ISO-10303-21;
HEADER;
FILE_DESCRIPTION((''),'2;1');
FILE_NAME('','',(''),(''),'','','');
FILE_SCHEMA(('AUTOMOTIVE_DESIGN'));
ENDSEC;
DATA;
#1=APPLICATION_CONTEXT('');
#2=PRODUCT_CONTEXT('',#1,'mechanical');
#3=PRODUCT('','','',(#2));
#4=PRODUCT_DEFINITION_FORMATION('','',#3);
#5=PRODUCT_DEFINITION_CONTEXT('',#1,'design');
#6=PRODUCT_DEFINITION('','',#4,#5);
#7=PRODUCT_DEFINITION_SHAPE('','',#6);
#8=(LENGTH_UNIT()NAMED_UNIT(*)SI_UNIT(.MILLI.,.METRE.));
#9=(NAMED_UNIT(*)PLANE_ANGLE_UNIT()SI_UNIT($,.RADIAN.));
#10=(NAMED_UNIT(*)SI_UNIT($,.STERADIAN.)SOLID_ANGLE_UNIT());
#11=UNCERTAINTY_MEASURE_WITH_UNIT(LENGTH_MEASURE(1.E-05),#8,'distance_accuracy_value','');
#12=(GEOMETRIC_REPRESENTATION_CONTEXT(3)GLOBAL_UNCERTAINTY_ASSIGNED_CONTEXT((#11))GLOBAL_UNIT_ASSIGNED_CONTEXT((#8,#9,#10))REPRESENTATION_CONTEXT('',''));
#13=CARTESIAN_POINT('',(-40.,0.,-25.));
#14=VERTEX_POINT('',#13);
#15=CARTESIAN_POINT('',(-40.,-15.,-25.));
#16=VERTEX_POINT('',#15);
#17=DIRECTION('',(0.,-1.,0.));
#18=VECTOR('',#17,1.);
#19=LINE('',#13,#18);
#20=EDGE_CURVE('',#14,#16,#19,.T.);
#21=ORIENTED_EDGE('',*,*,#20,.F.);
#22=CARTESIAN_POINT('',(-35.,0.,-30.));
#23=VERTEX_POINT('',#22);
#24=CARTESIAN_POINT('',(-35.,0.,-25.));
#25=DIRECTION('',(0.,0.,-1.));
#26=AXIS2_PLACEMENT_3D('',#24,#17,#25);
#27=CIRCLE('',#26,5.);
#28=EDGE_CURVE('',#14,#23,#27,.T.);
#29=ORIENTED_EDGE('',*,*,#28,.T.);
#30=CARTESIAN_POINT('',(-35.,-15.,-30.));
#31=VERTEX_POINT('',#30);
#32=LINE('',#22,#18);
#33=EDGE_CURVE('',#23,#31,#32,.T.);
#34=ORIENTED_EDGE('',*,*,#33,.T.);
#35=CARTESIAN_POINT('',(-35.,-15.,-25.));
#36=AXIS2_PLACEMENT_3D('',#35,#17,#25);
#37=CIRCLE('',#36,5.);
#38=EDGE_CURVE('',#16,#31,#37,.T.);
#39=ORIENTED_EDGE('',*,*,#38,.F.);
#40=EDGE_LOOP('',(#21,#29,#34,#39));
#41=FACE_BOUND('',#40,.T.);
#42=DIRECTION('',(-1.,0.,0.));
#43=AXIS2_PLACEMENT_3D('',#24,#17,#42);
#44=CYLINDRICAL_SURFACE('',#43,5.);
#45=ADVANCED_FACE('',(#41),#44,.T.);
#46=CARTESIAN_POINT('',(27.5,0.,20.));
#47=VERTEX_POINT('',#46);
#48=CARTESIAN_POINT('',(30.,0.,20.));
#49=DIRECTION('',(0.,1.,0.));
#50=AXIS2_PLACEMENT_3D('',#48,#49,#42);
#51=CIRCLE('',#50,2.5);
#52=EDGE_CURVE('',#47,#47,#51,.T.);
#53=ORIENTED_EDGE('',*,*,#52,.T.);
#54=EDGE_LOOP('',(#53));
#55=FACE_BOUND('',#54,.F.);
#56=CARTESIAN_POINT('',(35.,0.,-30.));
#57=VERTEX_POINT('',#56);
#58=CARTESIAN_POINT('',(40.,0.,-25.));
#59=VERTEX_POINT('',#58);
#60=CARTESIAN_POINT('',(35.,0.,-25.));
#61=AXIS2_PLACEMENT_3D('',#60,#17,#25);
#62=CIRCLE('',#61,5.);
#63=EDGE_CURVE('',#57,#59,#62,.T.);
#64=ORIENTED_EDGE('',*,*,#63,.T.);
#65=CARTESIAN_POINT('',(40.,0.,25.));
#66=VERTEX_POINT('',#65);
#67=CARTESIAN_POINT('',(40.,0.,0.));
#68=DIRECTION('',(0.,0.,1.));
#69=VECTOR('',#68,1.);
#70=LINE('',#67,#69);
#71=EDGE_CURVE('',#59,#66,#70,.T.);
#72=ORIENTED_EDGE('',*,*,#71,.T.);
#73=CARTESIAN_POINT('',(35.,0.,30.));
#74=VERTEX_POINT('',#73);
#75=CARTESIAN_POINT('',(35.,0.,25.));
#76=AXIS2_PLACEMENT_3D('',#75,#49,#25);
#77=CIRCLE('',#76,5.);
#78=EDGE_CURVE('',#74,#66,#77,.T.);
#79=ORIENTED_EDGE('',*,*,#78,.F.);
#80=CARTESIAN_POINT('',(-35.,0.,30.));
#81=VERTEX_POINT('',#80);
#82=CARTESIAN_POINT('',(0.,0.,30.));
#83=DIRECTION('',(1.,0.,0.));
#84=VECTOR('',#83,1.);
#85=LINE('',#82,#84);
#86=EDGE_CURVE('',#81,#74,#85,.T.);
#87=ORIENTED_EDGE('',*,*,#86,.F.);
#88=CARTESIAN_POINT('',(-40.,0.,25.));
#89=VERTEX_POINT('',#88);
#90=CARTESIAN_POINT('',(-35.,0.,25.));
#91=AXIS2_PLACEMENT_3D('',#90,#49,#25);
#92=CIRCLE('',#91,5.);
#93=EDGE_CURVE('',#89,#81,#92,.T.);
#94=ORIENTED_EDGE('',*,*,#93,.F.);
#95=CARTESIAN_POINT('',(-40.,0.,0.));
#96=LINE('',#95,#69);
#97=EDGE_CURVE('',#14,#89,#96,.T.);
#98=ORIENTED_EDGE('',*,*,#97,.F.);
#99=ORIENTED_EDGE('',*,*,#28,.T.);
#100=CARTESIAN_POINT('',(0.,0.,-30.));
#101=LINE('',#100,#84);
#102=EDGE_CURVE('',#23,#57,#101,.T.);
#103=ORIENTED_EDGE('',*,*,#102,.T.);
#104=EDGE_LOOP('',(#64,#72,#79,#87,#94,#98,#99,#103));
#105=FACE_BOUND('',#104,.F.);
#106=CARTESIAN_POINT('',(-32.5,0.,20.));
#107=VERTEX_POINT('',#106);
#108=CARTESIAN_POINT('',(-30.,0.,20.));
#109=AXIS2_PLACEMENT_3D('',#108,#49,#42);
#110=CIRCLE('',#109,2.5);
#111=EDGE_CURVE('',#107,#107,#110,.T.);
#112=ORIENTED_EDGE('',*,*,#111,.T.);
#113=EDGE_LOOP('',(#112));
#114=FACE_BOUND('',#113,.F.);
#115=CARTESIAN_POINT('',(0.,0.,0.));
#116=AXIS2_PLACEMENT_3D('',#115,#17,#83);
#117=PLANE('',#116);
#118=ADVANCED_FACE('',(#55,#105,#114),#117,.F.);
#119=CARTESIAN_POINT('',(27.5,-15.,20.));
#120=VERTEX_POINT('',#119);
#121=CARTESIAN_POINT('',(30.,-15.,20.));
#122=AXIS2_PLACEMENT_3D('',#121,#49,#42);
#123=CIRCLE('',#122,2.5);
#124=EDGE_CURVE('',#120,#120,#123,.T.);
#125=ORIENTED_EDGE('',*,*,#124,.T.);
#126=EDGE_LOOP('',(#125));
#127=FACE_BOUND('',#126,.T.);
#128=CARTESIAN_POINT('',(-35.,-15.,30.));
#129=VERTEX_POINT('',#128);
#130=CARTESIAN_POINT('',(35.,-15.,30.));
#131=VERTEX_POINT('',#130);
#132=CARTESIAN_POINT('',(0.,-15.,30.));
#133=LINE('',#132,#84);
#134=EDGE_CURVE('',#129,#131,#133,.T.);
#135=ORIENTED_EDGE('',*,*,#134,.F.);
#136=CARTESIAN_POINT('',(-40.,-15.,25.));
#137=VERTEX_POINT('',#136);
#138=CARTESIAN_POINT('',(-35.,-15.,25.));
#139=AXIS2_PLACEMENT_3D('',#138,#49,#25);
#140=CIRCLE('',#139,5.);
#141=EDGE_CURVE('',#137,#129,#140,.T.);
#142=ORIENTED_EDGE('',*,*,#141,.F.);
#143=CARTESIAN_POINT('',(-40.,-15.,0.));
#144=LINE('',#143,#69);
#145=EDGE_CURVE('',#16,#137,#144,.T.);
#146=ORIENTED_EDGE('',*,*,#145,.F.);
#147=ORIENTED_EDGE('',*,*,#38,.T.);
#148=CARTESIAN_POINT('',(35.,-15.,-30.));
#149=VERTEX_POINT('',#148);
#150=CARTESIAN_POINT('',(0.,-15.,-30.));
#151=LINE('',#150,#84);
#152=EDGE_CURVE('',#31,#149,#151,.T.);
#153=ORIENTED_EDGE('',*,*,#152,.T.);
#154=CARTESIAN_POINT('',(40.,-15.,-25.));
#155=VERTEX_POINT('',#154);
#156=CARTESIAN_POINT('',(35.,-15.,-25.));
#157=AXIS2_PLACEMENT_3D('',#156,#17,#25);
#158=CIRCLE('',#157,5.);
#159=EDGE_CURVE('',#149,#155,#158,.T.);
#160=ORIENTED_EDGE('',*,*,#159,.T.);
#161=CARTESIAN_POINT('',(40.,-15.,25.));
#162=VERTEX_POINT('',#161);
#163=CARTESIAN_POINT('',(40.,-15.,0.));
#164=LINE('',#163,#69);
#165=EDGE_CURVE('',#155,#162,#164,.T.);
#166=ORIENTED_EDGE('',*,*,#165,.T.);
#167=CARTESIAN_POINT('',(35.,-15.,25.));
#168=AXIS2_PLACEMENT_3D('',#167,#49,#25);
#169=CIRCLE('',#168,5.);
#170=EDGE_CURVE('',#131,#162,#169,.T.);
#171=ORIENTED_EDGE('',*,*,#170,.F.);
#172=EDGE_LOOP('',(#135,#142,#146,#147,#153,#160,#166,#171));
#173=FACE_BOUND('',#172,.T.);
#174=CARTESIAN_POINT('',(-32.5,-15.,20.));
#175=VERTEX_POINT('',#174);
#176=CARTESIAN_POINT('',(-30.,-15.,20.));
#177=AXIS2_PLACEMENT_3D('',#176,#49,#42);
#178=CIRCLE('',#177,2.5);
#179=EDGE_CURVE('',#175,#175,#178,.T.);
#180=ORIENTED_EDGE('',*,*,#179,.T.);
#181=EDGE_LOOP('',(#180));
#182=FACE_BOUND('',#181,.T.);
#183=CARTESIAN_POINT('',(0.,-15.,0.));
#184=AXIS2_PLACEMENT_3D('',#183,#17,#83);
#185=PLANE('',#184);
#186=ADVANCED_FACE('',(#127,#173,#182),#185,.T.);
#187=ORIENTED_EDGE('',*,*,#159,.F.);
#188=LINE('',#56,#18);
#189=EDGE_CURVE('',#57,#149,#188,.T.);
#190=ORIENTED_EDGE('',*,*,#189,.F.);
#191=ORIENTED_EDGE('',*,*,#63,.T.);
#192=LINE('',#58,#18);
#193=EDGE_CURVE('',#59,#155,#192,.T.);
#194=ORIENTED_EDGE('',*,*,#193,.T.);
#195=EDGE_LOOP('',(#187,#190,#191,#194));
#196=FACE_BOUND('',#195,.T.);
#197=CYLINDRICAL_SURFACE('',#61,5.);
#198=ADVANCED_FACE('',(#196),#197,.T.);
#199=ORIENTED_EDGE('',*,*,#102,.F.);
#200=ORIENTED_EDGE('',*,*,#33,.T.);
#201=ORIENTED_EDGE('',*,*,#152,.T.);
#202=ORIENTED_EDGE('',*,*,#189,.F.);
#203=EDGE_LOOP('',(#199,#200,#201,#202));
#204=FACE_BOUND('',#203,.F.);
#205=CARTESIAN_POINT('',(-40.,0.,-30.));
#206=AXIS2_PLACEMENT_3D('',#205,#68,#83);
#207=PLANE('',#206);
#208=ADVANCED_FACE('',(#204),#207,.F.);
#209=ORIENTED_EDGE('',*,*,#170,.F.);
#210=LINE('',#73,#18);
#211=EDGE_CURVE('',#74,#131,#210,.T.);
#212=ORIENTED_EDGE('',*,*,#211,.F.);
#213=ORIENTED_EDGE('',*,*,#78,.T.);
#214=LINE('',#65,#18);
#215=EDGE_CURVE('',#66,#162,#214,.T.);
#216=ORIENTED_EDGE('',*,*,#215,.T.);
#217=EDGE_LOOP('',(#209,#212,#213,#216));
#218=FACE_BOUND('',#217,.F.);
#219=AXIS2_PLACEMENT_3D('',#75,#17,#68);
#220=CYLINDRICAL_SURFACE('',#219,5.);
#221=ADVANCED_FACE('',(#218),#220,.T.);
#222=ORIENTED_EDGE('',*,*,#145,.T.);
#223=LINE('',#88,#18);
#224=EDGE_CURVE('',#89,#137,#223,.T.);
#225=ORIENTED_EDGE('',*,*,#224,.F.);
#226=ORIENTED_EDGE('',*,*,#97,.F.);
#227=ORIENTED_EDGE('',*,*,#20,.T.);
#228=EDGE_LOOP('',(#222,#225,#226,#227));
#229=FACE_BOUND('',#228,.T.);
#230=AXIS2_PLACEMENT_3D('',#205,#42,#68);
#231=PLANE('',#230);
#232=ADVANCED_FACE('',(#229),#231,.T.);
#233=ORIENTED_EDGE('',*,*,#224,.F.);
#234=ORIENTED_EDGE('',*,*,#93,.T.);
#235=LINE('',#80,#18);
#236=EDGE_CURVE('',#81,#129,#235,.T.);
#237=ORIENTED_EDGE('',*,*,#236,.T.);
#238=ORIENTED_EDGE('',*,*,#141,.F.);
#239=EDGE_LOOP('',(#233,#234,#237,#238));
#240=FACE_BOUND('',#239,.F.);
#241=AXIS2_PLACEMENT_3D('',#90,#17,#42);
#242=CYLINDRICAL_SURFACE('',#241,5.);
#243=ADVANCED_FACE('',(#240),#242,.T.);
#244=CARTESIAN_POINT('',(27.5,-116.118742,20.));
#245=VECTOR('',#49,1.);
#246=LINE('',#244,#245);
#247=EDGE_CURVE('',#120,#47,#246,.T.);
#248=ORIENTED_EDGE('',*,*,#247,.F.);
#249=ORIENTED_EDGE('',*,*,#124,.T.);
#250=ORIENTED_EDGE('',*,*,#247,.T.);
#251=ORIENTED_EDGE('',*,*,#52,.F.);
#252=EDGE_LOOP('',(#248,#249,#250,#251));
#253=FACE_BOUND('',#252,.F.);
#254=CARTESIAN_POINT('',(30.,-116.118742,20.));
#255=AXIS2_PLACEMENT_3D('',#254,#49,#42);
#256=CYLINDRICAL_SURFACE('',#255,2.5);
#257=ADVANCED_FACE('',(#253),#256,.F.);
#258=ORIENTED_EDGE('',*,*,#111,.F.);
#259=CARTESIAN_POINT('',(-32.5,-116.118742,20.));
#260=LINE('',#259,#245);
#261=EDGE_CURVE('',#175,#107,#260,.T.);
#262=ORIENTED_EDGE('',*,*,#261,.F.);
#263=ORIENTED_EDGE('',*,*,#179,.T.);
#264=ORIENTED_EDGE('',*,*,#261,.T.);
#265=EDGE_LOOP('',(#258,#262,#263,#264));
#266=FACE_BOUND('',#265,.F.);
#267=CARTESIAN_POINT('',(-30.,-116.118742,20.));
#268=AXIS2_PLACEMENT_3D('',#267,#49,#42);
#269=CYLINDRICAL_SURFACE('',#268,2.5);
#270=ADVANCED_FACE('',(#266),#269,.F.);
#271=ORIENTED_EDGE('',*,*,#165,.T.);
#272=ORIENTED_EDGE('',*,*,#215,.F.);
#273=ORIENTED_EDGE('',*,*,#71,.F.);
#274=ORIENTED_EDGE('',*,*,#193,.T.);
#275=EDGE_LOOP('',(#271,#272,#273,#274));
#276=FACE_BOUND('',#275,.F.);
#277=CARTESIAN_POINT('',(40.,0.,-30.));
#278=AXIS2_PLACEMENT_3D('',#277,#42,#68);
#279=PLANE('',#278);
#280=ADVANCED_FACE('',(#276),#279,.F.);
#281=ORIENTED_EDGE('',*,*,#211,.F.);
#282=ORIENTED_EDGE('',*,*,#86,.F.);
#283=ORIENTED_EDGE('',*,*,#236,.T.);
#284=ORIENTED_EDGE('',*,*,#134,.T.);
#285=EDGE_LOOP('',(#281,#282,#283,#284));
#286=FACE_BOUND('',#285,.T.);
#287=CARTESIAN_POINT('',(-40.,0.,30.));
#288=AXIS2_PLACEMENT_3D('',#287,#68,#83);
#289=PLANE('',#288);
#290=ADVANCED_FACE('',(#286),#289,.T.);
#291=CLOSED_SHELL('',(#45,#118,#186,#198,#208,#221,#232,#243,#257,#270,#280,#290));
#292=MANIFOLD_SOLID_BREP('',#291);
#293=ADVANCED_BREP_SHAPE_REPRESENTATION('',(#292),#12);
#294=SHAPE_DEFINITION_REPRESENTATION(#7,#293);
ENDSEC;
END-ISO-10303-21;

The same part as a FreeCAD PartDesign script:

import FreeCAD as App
import Part
import Sketcher
from FreeCAD import Vector
Q = App.Units.Quantity


def edges_at(feature, points):
    """Names of the edges that pass closest to the given points."""
    edges = feature.Shape.Edges
    near = lambda p: min(range(len(edges)), key=lambda i: edges[i].distToShape(Part.Vertex(*p))[0])
    return sorted({f"Edge{near(p) + 1}" for p in points})


def add_polygon(sketch, points):
    """Adds a closed chain of lines whose ends are joined by coincident constraints."""
    first, n = sketch.GeometryCount, len(points)
    for a, b in zip(points, points[1:] + points[:1]):
        sketch.addGeometry(Part.LineSegment(App.Vector(*a, 0), App.Vector(*b, 0)), False)
    for i in range(n):
        sketch.addConstraint(Sketcher.Constraint("Coincident", first + i, 2, first + (i + 1) % n, 1))

doc = App.newDocument("Part")
params = doc.addObject("Spreadsheet::Sheet", "Params")
for row, (alias, value) in enumerate([
    ("sketch1_width", "80 mm"),
    ("sketch1_height", "60 mm"),
    ("pad1_length", "15 mm"),
    ("sketch2_diameter", "5 mm"),
    ("hole_diameter", "5 mm"),
    ("fillet_radius", "5 mm"),
], start=1):
    params.set(f"A{row}", alias)
    params.set(f"B{row}", "=" + value)
    params.setAlias(f"B{row}", alias)

body = doc.addObject("PartDesign::Body", "Body")

sketch1 = body.newObject("Sketcher::SketchObject", "Sketch")
sketch1.AttachmentSupport = (doc.getObject("XZ_Plane"), [""])
sketch1.MapMode = "FlatFace"
add_polygon(sketch1, [(-40, 30), (-40, -30), (40, -30), (40, 30)])
sketch1.addConstraint([
    Sketcher.Constraint("Vertical", 0),
    Sketcher.Constraint("Horizontal", 1),
    Sketcher.Constraint("Vertical", 2),
    Sketcher.Constraint("Horizontal", 3),
    Sketcher.Constraint("Symmetric", 0, 2, 2, 2, -1, 1),
    Sketcher.Constraint("DistanceX", 1, 1, 1, 2, Q("80 mm")),
    Sketcher.Constraint("DistanceY", 0, 2, 0, 1, Q("60 mm")),
])
sketch1.setExpression("Constraints[9]", "Params.sketch1_width")
sketch1.setExpression("Constraints[10]", "Params.sketch1_height")
pad1 = body.newObject("PartDesign::Pad", "Pad")
pad1.Profile = sketch1
pad1.setExpression("Length", "Params.pad1_length")

sketch2 = body.newObject("Sketcher::SketchObject", "Sketch001")
sketch2.AttachmentSupport = (doc.getObject("XZ_Plane"), [""])
sketch2.MapMode = "FlatFace"
sketch2.AttachmentOffset = App.Placement(Vector(0, 0, 15), App.Rotation())
sketch2.addGeometry([
    Part.Circle(Vector(-30, 20, 0), Vector(0, 0, 1), 2.5),
    Part.Circle(Vector(30, 20, 0), Vector(0, 0, 1), 2.5),
], False)
sketch2.addConstraint([
    Sketcher.Constraint("Equal", 0, 1),
    Sketcher.Constraint("Symmetric", 0, 3, 1, 3, -2),
    Sketcher.Constraint("Diameter", 0, Q("5 mm")),
    Sketcher.Constraint("DistanceX", 0, 3, -1, 1, Q("30 mm")),
    Sketcher.Constraint("DistanceY", -1, 1, 0, 3, Q("20 mm")),
])
sketch2.setExpression("Constraints[2]", "Params.sketch2_diameter")
doc.recompute()
hole = body.newObject("PartDesign::Hole", "Hole")
hole.Profile = sketch2
hole.ThreadType = "None"
hole.setExpression("Diameter", "Params.hole_diameter")
hole.DepthType = "ThroughAll"
doc.recompute()

fillet = body.newObject("PartDesign::Fillet", "Fillet")
fillet.Base = (hole, edges_at(hole, [
    (40, -7.5, 30),
    (-40, -7.5, 30),
    (-40, -7.5, -30),
    (40, -7.5, -30),
]))
fillet.setExpression("Radius", "Params.fillet_radius")

doc.recompute()
